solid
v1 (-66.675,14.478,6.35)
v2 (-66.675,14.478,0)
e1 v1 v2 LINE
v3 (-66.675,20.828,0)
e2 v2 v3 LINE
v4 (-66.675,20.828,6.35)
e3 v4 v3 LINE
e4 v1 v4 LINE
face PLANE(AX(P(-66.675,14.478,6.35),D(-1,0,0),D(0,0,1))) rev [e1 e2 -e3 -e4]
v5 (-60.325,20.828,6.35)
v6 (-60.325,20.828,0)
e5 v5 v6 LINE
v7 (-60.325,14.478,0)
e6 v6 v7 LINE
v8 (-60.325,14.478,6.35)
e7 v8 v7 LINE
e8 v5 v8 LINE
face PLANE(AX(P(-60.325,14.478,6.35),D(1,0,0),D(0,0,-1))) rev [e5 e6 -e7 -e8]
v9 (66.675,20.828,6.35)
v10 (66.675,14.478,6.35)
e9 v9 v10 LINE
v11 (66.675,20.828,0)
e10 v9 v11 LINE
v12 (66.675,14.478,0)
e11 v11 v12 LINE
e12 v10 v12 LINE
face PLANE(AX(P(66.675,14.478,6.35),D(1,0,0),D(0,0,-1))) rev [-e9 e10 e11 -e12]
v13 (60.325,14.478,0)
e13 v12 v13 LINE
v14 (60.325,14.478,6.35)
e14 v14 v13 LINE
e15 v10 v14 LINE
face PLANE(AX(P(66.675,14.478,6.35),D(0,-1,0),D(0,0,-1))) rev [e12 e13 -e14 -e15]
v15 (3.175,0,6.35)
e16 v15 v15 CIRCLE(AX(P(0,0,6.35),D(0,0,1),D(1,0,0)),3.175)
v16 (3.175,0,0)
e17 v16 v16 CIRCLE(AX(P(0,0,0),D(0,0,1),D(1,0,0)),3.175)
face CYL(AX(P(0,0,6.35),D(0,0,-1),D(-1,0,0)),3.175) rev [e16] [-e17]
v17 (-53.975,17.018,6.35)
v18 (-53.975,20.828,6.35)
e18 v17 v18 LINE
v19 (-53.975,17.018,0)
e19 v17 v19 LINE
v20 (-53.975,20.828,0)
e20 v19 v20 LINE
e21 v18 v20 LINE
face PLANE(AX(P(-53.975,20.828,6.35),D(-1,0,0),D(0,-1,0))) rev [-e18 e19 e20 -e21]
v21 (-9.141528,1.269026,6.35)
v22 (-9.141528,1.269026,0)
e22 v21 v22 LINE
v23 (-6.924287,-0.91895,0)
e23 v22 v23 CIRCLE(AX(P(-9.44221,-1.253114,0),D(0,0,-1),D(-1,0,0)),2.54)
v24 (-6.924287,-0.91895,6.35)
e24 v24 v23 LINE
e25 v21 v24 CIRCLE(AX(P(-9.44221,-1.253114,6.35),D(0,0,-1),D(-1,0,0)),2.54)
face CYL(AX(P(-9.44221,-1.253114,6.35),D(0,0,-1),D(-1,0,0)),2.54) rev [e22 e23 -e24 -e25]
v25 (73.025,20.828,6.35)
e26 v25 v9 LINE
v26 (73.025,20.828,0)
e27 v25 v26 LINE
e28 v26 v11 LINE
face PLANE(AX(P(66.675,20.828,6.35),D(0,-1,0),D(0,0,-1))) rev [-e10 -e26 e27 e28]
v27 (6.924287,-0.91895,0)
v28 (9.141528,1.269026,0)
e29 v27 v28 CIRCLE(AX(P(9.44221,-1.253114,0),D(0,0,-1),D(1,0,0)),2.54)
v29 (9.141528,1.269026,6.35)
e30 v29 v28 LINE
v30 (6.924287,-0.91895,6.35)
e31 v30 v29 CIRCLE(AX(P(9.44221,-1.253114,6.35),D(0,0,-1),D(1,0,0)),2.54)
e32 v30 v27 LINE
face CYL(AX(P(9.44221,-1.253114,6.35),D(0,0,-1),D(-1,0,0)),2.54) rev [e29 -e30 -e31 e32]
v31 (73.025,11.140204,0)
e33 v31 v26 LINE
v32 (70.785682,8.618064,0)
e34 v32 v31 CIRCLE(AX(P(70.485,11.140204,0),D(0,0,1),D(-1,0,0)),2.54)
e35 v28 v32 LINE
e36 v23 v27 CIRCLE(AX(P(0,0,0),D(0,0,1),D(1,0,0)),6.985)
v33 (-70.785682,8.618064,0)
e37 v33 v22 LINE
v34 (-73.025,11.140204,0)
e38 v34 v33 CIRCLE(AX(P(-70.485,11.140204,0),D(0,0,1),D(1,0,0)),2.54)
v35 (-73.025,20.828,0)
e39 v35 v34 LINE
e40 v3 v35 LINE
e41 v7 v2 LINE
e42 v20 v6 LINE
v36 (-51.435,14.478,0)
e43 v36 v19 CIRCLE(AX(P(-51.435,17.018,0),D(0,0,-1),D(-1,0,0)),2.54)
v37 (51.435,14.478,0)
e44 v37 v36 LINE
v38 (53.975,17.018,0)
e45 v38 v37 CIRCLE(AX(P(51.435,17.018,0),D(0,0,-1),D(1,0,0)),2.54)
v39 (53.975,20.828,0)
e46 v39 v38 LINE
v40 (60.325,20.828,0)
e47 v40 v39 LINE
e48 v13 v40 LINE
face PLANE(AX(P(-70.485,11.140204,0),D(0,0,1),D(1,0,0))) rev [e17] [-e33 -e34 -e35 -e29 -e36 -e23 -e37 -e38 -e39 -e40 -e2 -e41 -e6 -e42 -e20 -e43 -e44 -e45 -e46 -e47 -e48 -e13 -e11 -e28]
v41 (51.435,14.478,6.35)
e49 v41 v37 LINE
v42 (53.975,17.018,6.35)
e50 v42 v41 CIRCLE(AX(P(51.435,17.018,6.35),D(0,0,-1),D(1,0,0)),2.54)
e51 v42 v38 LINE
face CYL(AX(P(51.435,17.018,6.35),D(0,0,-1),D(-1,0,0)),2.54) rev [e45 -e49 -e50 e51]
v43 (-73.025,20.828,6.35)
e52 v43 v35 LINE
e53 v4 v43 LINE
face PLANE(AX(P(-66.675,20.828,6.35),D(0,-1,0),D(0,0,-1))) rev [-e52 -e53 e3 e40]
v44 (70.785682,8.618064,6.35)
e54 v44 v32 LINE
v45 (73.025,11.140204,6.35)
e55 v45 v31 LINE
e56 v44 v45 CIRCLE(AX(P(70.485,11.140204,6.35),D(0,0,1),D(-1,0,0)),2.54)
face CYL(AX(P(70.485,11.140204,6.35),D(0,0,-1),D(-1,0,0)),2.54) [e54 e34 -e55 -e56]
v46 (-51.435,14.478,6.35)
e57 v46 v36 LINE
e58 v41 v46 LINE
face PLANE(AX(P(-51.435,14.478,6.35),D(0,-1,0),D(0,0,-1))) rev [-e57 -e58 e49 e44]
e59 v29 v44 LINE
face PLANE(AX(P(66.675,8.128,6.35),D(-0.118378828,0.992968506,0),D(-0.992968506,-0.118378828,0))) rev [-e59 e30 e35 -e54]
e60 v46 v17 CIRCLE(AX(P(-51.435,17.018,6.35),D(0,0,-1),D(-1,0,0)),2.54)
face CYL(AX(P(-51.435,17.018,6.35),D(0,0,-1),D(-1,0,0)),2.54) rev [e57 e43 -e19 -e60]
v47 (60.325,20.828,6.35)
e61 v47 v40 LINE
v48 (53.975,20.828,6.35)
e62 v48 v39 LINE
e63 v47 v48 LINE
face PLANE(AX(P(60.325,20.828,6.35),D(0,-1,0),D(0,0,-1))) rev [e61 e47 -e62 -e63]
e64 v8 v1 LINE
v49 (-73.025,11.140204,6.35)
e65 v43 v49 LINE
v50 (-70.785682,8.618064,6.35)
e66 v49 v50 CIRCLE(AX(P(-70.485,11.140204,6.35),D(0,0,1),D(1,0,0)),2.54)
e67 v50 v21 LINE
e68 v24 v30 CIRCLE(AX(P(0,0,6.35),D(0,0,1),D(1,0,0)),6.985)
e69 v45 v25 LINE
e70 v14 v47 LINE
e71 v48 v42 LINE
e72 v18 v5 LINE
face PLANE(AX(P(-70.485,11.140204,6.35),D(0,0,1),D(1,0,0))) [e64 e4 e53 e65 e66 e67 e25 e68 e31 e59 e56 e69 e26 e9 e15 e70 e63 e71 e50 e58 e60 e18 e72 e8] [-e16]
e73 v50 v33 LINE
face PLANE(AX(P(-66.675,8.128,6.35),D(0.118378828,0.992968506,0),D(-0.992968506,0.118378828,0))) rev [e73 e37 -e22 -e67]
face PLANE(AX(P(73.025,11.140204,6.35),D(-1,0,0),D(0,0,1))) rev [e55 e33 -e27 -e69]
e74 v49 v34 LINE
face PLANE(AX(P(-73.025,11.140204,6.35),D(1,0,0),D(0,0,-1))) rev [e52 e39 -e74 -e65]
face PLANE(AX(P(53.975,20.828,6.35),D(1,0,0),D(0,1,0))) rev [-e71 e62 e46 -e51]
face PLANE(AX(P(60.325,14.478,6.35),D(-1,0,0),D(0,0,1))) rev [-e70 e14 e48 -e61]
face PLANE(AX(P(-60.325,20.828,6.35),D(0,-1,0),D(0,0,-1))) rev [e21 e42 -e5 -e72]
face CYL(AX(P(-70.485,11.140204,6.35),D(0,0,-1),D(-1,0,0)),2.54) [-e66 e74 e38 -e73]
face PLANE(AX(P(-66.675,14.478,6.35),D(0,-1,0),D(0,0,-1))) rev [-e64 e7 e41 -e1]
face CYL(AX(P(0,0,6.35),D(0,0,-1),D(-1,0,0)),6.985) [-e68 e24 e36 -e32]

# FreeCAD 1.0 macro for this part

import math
import FreeCAD as App
import Part
import Sketcher
from FreeCAD import Vector
Q = App.Units.Quantity

doc = App.newDocument("Part")
params = doc.addObject("Spreadsheet::Sheet", "Params")
for row, (alias, value) in enumerate([
    ("sketch1_radius", "0.1 in"),
    ("sketch1_diameter", "0.25 in"),
    ("sketch1_radius2", "0.275 in"),
    ("sketch1_width", "0.25 in"),
    ("sketch1_width2", "4.05 in"),
    ("pad1_length", "0.25 in"),
], start=1):
    params.set(f"A{row}", alias)
    params.set(f"B{row}", "=" + value)
    params.setAlias(f"B{row}", alias)

body = doc.addObject("PartDesign::Body", "Body")

# Sketch on XY plane
sketch1 = doc.addObject("Sketcher::SketchObject", "Sketch")
body.addObject(sketch1)
sketch1.AttachmentSupport = (doc.XY_Plane, [""])
sketch1.MapMode = "FlatFace"
sketch1.addGeometry(Part.LineSegment(Vector(-66.675, 8.128, 0), Vector(-9.141528, 1.269026, 0)), False)
sketch1.addGeometry(Part.ArcOfCircle(Part.Circle(Vector(-9.44221, -1.253114, 0), Vector(0, 0, 1), 2.54), math.radians(7.559778), math.radians(83.201451)), False)
sketch1.addGeometry(Part.ArcOfCircle(Part.Circle(Vector(0, 0, 0), Vector(0, 0, 1), 6.985), math.radians(-172.440222), math.radians(-7.559778)), False)
sketch1.addGeometry(Part.ArcOfCircle(Part.Circle(Vector(9.44221, -1.253114, 0), Vector(0, 0, 1), 2.54), math.radians(96.798549), math.radians(172.440222)), False)
sketch1.addGeometry(Part.LineSegment(Vector(9.141528, 1.269026, 0), Vector(66.675, 8.128, 0)), False)
sketch1.addGeometry(Part.LineSegment(Vector(66.675, 8.128, 0), Vector(70.785682, 8.618064, 0)), False)
sketch1.addGeometry(Part.ArcOfCircle(Part.Circle(Vector(70.485, 11.140204, 0), Vector(0, 0, 1), 2.54), math.radians(-83.201451), math.radians(0)), False)
sketch1.addGeometry(Part.LineSegment(Vector(73.025, 11.140204, 0), Vector(73.025, 20.828, 0)), False)
sketch1.addGeometry(Part.LineSegment(Vector(73.025, 20.828, 0), Vector(66.675, 20.828, 0)), False)
sketch1.addGeometry(Part.LineSegment(Vector(66.675, 20.828, 0), Vector(66.675, 14.478, 0)), False)
sketch1.addGeometry(Part.LineSegment(Vector(66.675, 14.478, 0), Vector(60.325, 14.478, 0)), False)
sketch1.addGeometry(Part.LineSegment(Vector(60.325, 14.478, 0), Vector(60.325, 20.828, 0)), False)
sketch1.addGeometry(Part.LineSegment(Vector(60.325, 20.828, 0), Vector(53.975, 20.828, 0)), False)
sketch1.addGeometry(Part.LineSegment(Vector(53.975, 20.828, 0), Vector(53.975, 17.018, 0)), False)
sketch1.addGeometry(Part.ArcOfCircle(Part.Circle(Vector(51.435, 17.018, 0), Vector(0, 0, 1), 2.54), math.radians(-90), math.radians(0)), False)
sketch1.addGeometry(Part.LineSegment(Vector(51.435, 14.478, 0), Vector(-51.435, 14.478, 0)), False)
sketch1.addGeometry(Part.ArcOfCircle(Part.Circle(Vector(-51.435, 17.018, 0), Vector(0, 0, 1), 2.54), math.radians(-180), math.radians(-90)), False)
sketch1.addGeometry(Part.LineSegment(Vector(-53.975, 17.018, 0), Vector(-53.975, 20.828, 0)), False)
sketch1.addGeometry(Part.LineSegment(Vector(-53.975, 20.828, 0), Vector(-60.325, 20.828, 0)), False)
sketch1.addGeometry(Part.LineSegment(Vector(-60.325, 20.828, 0), Vector(-60.325, 14.478, 0)), False)
sketch1.addGeometry(Part.LineSegment(Vector(-60.325, 14.478, 0), Vector(-66.675, 14.478, 0)), False)
sketch1.addGeometry(Part.LineSegment(Vector(-66.675, 14.478, 0), Vector(-66.675, 20.828, 0)), False)
sketch1.addGeometry(Part.LineSegment(Vector(-66.675, 20.828, 0), Vector(-73.025, 20.828, 0)), False)
sketch1.addGeometry(Part.LineSegment(Vector(-73.025, 20.828, 0), Vector(-73.025, 11.140204, 0)), False)
sketch1.addGeometry(Part.ArcOfCircle(Part.Circle(Vector(-70.485, 11.140204, 0), Vector(0, 0, 1), 2.54), math.radians(180), math.radians(263.201451)), False)
sketch1.addGeometry(Part.LineSegment(Vector(-70.785682, 8.618064, 0), Vector(-66.675, 8.128, 0)), False)
sketch1.addGeometry(Part.Circle(Vector(0, 0, 0), Vector(0, 0, 1), 3.175), False)
sketch1.addConstraint(Sketcher.Constraint("Tangent", 0, 2, 1, 2))
sketch1.addConstraint(Sketcher.Constraint("Tangent", 1, 1, 2, 1))
sketch1.addConstraint(Sketcher.Constraint("Tangent", 2, 2, 3, 2))
sketch1.addConstraint(Sketcher.Constraint("Tangent", 3, 1, 4, 1))
sketch1.addConstraint(Sketcher.Constraint("Coincident", 4, 2, 5, 1))
sketch1.addConstraint(Sketcher.Constraint("Tangent", 5, 2, 6, 1))
sketch1.addConstraint(Sketcher.Constraint("Tangent", 6, 2, 7, 1))
sketch1.addConstraint(Sketcher.Constraint("Coincident", 7, 2, 8, 1))
sketch1.addConstraint(Sketcher.Constraint("Coincident", 8, 2, 9, 1))
sketch1.addConstraint(Sketcher.Constraint("Coincident", 9, 2, 10, 1))
sketch1.addConstraint(Sketcher.Constraint("Coincident", 10, 2, 11, 1))
sketch1.addConstraint(Sketcher.Constraint("Coincident", 11, 2, 12, 1))
sketch1.addConstraint(Sketcher.Constraint("Coincident", 12, 2, 13, 1))
sketch1.addConstraint(Sketcher.Constraint("Tangent", 13, 2, 14, 2))
sketch1.addConstraint(Sketcher.Constraint("Tangent", 14, 1, 15, 1))
sketch1.addConstraint(Sketcher.Constraint("Tangent", 15, 2, 16, 2))
sketch1.addConstraint(Sketcher.Constraint("Tangent", 16, 1, 17, 1))
sketch1.addConstraint(Sketcher.Constraint("Coincident", 17, 2, 18, 1))
sketch1.addConstraint(Sketcher.Constraint("Coincident", 18, 2, 19, 1))
sketch1.addConstraint(Sketcher.Constraint("Coincident", 19, 2, 20, 1))
sketch1.addConstraint(Sketcher.Constraint("Coincident", 20, 2, 21, 1))
sketch1.addConstraint(Sketcher.Constraint("Coincident", 21, 2, 22, 1))
sketch1.addConstraint(Sketcher.Constraint("Coincident", 22, 2, 23, 1))
sketch1.addConstraint(Sketcher.Constraint("Tangent", 23, 2, 24, 1))
sketch1.addConstraint(Sketcher.Constraint("Tangent", 24, 2, 25, 1))
sketch1.addConstraint(Sketcher.Constraint("Coincident", 25, 2, 0, 1))
sketch1.addConstraint(Sketcher.Constraint("Vertical", 7))
sketch1.addConstraint(Sketcher.Constraint("Horizontal", 8))
sketch1.addConstraint(Sketcher.Constraint("Vertical", 9))
sketch1.addConstraint(Sketcher.Constraint("Horizontal", 10))
sketch1.addConstraint(Sketcher.Constraint("Vertical", 11))
sketch1.addConstraint(Sketcher.Constraint("Horizontal", 12))
sketch1.addConstraint(Sketcher.Constraint("Vertical", 13))
sketch1.addConstraint(Sketcher.Constraint("Horizontal", 15))
sketch1.addConstraint(Sketcher.Constraint("Vertical", 17))
sketch1.addConstraint(Sketcher.Constraint("Horizontal", 18))
sketch1.addConstraint(Sketcher.Constraint("Vertical", 19))
sketch1.addConstraint(Sketcher.Constraint("Horizontal", 20))
sketch1.addConstraint(Sketcher.Constraint("Vertical", 21))
sketch1.addConstraint(Sketcher.Constraint("Horizontal", 22))
sketch1.addConstraint(Sketcher.Constraint("Vertical", 23))
sketch1.addConstraint(Sketcher.Constraint("Coincident", 2, 3, -1, 1))
sketch1.addConstraint(Sketcher.Constraint("Coincident", 26, 3, -1, 1))
sketch1.addConstraint(Sketcher.Constraint("Equal", 1, 3))
sketch1.addConstraint(Sketcher.Constraint("Equal", 3, 6))
sketch1.addConstraint(Sketcher.Constraint("Equal", 6, 14))
sketch1.addConstraint(Sketcher.Constraint("Equal", 14, 16))
sketch1.addConstraint(Sketcher.Constraint("Equal", 16, 24))
sketch1.addConstraint(Sketcher.Constraint("Symmetric", 6, 3, 24, 3, -2))
sketch1.addConstraint(Sketcher.Constraint("Symmetric", 0, 2, 3, 1, -2))
sketch1.addConstraint(Sketcher.Constraint("Symmetric", 12, 2, 17, 2, -2))
sketch1.addConstraint(Sketcher.Constraint("Symmetric", 10, 2, 19, 2, -2))
sketch1.addConstraint(Sketcher.Constraint("Symmetric", 8, 2, 21, 2, -2))
sketch1.addConstraint(Sketcher.Constraint("Parallel", 4, 5))
sketch1.addConstraint(Sketcher.Constraint("Horizontal", 8, 2, 11, 2))
sketch1.addConstraint(Sketcher.Constraint("Horizontal", 10, 2, 14, 1))
sketch1.addConstraint(Sketcher.Constraint("Horizontal", 4, 2, 25, 2))
sketch1.addConstraint(Sketcher.Constraint("Vertical", 4, 2, 8, 2))
sketch1.addConstraint(Sketcher.Constraint("Equal", 8, 10))
sketch1.addConstraint(Sketcher.Constraint("Equal", 10, 12))
sketch1.addConstraint(Sketcher.Constraint("Equal", 22, 9))
sketch1.addConstraint(Sketcher.Constraint("Radius", 1, Q("0.1 in")))
sketch1.addConstraint(Sketcher.Constraint("Diameter", 26, Q("0.25 in")))
sketch1.addConstraint(Sketcher.Constraint("Radius", 2, Q("0.275 in")))
sketch1.addConstraint(Sketcher.Constraint("DistanceX", 8, 2, 8, 1, Q("0.25 in")))
sketch1.addConstraint(Sketcher.Constraint("DistanceX", 15, 2, 15, 1, Q("4.05 in")))
sketch1.addConstraint(Sketcher.Constraint("DistanceY", 4, 2, 7, 2, Q("0.5 in")))
sketch1.addConstraint(Sketcher.Constraint("DistanceY", -1, 1, 14, 3, Q("0.67 in")))
sketch1.addConstraint(Sketcher.Constraint("Distance", 5, 4.139791))
sketch1.setExpression("Constraints[61]", "Params.sketch1_radius")
sketch1.setExpression("Constraints[62]", "Params.sketch1_diameter")
sketch1.setExpression("Constraints[63]", "Params.sketch1_radius2")
sketch1.setExpression("Constraints[64]", "Params.sketch1_width")
sketch1.setExpression("Constraints[65]", "Params.sketch1_width2")
pad1 = doc.addObject("PartDesign::Pad", "Pad")
body.addObject(pad1)
pad1.Profile = sketch1
pad1.setExpression("Length", "Params.pad1_length")

doc.recompute()
